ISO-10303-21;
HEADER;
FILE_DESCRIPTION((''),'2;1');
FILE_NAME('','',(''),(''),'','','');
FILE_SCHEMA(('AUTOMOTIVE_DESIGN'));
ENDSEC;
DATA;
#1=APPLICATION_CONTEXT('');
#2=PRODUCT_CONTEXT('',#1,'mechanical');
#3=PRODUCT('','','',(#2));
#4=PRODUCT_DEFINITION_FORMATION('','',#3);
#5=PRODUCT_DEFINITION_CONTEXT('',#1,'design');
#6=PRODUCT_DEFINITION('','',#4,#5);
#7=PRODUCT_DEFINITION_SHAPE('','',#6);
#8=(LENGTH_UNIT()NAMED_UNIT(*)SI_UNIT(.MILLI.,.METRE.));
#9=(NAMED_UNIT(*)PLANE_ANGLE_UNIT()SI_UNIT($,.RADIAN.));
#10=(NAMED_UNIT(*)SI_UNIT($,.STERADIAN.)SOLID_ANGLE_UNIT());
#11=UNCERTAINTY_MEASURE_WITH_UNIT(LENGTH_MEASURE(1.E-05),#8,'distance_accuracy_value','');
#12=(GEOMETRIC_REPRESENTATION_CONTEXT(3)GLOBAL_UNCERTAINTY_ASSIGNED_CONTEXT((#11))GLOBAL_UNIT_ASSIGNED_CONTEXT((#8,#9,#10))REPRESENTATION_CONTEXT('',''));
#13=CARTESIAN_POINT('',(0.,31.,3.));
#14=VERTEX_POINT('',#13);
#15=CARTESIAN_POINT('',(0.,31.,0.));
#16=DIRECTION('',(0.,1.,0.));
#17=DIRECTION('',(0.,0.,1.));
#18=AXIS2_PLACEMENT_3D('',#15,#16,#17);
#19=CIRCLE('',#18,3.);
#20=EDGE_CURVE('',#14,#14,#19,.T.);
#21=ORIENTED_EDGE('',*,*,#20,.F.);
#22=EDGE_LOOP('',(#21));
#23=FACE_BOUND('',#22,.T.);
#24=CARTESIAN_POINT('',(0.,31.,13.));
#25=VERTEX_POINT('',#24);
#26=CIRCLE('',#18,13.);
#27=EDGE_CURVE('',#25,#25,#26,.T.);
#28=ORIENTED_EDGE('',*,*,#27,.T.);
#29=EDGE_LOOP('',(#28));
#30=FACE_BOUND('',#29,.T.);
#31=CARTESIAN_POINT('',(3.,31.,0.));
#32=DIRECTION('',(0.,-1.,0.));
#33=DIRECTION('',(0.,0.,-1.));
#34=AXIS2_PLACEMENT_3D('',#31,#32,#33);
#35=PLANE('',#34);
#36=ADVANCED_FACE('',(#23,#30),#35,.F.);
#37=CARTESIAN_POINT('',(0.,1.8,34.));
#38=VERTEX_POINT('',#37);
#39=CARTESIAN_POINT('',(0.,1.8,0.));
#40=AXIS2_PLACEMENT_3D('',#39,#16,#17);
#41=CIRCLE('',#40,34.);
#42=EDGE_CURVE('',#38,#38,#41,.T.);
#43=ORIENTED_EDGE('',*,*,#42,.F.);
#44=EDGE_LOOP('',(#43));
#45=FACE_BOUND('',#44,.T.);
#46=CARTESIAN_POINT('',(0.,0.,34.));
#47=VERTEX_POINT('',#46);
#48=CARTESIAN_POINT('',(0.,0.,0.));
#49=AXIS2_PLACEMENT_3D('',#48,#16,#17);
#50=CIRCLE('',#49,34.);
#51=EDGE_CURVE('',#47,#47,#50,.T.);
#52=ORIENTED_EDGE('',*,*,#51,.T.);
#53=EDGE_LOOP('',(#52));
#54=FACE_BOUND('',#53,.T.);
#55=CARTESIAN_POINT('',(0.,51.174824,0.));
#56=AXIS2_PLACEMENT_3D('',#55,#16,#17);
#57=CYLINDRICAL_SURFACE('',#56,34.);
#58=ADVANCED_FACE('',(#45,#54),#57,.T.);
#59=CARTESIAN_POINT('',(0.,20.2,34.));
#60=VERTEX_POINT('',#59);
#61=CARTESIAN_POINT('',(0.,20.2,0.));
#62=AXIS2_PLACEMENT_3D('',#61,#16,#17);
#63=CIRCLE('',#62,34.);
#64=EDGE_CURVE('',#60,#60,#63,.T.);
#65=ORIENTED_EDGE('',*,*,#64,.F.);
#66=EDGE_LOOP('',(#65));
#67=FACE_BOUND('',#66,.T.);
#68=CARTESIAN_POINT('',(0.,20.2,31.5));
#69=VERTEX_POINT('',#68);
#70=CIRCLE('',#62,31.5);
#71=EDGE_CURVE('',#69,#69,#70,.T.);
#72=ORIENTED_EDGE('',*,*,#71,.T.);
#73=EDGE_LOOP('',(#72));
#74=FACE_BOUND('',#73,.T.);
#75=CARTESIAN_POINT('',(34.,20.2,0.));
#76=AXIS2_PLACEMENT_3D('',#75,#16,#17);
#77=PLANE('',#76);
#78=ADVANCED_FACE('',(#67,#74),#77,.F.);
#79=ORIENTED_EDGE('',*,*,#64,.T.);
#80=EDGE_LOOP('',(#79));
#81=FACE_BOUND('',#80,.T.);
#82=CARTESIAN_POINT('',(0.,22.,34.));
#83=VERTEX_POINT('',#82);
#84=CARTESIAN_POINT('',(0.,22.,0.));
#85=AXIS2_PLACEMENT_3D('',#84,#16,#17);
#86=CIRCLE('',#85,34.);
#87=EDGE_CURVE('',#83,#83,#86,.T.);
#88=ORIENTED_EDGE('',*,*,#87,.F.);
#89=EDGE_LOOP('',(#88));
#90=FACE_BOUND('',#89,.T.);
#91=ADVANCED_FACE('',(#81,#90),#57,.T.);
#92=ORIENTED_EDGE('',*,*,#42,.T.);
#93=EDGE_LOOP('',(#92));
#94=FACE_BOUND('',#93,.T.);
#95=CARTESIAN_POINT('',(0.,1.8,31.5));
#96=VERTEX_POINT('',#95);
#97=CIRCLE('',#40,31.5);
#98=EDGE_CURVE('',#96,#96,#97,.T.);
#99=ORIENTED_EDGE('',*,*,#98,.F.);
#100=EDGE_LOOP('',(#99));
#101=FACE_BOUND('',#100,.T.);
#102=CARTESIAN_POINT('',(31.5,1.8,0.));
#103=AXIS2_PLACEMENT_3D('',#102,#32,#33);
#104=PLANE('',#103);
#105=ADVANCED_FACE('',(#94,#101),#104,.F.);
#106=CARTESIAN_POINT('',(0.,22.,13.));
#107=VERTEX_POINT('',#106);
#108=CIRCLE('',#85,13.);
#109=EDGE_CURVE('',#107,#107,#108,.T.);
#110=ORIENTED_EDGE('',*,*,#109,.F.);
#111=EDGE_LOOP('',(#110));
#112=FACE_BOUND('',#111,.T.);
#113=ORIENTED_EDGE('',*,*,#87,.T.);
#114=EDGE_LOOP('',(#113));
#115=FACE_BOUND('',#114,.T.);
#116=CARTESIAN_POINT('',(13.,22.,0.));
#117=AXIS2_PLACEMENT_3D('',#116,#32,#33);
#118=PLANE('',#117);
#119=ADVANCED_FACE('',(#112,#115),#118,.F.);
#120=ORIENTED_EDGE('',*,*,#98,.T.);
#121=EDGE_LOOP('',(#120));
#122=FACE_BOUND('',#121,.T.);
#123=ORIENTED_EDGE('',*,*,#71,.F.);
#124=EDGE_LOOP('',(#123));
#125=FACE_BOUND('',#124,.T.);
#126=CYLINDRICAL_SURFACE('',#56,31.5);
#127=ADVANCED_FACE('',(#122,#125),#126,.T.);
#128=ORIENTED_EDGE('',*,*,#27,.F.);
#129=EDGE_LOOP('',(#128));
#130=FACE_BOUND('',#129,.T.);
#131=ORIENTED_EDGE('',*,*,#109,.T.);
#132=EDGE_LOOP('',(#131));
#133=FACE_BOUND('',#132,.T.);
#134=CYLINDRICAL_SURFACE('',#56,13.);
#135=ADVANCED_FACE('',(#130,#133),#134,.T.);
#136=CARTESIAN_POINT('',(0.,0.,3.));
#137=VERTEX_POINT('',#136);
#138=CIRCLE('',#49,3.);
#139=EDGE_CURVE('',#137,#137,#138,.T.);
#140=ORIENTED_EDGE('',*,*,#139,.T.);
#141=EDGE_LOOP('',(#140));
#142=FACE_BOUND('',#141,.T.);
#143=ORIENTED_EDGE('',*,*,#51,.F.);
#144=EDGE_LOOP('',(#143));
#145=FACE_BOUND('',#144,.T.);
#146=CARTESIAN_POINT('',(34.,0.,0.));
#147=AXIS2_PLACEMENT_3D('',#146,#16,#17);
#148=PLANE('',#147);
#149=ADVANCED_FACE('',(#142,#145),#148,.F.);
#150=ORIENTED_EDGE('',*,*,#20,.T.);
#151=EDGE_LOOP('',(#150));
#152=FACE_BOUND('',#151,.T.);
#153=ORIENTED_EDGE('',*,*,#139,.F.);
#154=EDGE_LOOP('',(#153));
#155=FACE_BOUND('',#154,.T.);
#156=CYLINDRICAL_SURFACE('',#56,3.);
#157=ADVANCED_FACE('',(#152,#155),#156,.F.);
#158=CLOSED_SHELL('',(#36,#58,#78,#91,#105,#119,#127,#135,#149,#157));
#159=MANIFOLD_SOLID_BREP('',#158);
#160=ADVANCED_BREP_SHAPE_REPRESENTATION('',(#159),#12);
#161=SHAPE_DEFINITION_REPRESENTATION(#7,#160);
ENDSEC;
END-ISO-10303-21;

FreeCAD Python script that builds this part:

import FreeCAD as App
import Part
import Sketcher
from FreeCAD import Vector


def add_polygon(sketch, points):
    """Adds a closed chain of lines whose ends are joined by coincident constraints."""
    first, n = sketch.GeometryCount, len(points)
    for a, b in zip(points, points[1:] + points[:1]):
        sketch.addGeometry(Part.LineSegment(App.Vector(*a, 0), App.Vector(*b, 0)), False)
    for i in range(n):
        sketch.addConstraint(Sketcher.Constraint("Coincident", first + i, 2, first + (i + 1) % n, 1))

doc = App.newDocument("Part")
body = doc.addObject("PartDesign::Body", "Body")

sketch1 = body.newObject("Sketcher::SketchObject", "Sketch")
sketch1.AttachmentSupport = (doc.getObject("XY_Plane"), [""])
sketch1.MapMode = "FlatFace"
add_polygon(sketch1, [(13, 31), (3, 31), (3, 0), (34, 0), (34, 1.8), (31.5, 1.8), (31.5, 20.2), (34, 20.2), (34, 22), (13, 22)])
sketch1.addConstraint([
    Sketcher.Constraint("Horizontal", 0),
    Sketcher.Constraint("Vertical", 1),
    Sketcher.Constraint("Horizontal", 2),
    Sketcher.Constraint("Vertical", 3),
    Sketcher.Constraint("Horizontal", 4),
    Sketcher.Constraint("Vertical", 5),
    Sketcher.Constraint("Horizontal", 6),
    Sketcher.Constraint("Vertical", 7),
    Sketcher.Constraint("Horizontal", 8),
    Sketcher.Constraint("Vertical", 9),
    Sketcher.Constraint("PointOnObject", 1, 2, -1),
    Sketcher.Constraint("Vertical", 3, 2, 6, 2),
    Sketcher.Constraint("Equal", 2, 1),
    Sketcher.Constraint("Equal", 3, 7),
    Sketcher.Constraint("DistanceX", 0, 2, 0, 1, 10.0),
    Sketcher.Constraint("DistanceX", 2, 1, 2, 2, 31.0),
    Sketcher.Constraint("DistanceY", 9, 1, 9, 2, 9.0),
    Sketcher.Constraint("DistanceX", 4, 2, 4, 1, 2.5),
    Sketcher.Constraint("DistanceY", 3, 1, 3, 2, 1.8),
    Sketcher.Constraint("DistanceX", -1, 1, 0, 2, 3.0),
])
revolution = body.newObject("PartDesign::Revolution", "Revolution")
revolution.Profile = sketch1
revolution.ReferenceAxis = (sketch1, ["V_Axis"])
revolution.Angle = 360

doc.recompute()
